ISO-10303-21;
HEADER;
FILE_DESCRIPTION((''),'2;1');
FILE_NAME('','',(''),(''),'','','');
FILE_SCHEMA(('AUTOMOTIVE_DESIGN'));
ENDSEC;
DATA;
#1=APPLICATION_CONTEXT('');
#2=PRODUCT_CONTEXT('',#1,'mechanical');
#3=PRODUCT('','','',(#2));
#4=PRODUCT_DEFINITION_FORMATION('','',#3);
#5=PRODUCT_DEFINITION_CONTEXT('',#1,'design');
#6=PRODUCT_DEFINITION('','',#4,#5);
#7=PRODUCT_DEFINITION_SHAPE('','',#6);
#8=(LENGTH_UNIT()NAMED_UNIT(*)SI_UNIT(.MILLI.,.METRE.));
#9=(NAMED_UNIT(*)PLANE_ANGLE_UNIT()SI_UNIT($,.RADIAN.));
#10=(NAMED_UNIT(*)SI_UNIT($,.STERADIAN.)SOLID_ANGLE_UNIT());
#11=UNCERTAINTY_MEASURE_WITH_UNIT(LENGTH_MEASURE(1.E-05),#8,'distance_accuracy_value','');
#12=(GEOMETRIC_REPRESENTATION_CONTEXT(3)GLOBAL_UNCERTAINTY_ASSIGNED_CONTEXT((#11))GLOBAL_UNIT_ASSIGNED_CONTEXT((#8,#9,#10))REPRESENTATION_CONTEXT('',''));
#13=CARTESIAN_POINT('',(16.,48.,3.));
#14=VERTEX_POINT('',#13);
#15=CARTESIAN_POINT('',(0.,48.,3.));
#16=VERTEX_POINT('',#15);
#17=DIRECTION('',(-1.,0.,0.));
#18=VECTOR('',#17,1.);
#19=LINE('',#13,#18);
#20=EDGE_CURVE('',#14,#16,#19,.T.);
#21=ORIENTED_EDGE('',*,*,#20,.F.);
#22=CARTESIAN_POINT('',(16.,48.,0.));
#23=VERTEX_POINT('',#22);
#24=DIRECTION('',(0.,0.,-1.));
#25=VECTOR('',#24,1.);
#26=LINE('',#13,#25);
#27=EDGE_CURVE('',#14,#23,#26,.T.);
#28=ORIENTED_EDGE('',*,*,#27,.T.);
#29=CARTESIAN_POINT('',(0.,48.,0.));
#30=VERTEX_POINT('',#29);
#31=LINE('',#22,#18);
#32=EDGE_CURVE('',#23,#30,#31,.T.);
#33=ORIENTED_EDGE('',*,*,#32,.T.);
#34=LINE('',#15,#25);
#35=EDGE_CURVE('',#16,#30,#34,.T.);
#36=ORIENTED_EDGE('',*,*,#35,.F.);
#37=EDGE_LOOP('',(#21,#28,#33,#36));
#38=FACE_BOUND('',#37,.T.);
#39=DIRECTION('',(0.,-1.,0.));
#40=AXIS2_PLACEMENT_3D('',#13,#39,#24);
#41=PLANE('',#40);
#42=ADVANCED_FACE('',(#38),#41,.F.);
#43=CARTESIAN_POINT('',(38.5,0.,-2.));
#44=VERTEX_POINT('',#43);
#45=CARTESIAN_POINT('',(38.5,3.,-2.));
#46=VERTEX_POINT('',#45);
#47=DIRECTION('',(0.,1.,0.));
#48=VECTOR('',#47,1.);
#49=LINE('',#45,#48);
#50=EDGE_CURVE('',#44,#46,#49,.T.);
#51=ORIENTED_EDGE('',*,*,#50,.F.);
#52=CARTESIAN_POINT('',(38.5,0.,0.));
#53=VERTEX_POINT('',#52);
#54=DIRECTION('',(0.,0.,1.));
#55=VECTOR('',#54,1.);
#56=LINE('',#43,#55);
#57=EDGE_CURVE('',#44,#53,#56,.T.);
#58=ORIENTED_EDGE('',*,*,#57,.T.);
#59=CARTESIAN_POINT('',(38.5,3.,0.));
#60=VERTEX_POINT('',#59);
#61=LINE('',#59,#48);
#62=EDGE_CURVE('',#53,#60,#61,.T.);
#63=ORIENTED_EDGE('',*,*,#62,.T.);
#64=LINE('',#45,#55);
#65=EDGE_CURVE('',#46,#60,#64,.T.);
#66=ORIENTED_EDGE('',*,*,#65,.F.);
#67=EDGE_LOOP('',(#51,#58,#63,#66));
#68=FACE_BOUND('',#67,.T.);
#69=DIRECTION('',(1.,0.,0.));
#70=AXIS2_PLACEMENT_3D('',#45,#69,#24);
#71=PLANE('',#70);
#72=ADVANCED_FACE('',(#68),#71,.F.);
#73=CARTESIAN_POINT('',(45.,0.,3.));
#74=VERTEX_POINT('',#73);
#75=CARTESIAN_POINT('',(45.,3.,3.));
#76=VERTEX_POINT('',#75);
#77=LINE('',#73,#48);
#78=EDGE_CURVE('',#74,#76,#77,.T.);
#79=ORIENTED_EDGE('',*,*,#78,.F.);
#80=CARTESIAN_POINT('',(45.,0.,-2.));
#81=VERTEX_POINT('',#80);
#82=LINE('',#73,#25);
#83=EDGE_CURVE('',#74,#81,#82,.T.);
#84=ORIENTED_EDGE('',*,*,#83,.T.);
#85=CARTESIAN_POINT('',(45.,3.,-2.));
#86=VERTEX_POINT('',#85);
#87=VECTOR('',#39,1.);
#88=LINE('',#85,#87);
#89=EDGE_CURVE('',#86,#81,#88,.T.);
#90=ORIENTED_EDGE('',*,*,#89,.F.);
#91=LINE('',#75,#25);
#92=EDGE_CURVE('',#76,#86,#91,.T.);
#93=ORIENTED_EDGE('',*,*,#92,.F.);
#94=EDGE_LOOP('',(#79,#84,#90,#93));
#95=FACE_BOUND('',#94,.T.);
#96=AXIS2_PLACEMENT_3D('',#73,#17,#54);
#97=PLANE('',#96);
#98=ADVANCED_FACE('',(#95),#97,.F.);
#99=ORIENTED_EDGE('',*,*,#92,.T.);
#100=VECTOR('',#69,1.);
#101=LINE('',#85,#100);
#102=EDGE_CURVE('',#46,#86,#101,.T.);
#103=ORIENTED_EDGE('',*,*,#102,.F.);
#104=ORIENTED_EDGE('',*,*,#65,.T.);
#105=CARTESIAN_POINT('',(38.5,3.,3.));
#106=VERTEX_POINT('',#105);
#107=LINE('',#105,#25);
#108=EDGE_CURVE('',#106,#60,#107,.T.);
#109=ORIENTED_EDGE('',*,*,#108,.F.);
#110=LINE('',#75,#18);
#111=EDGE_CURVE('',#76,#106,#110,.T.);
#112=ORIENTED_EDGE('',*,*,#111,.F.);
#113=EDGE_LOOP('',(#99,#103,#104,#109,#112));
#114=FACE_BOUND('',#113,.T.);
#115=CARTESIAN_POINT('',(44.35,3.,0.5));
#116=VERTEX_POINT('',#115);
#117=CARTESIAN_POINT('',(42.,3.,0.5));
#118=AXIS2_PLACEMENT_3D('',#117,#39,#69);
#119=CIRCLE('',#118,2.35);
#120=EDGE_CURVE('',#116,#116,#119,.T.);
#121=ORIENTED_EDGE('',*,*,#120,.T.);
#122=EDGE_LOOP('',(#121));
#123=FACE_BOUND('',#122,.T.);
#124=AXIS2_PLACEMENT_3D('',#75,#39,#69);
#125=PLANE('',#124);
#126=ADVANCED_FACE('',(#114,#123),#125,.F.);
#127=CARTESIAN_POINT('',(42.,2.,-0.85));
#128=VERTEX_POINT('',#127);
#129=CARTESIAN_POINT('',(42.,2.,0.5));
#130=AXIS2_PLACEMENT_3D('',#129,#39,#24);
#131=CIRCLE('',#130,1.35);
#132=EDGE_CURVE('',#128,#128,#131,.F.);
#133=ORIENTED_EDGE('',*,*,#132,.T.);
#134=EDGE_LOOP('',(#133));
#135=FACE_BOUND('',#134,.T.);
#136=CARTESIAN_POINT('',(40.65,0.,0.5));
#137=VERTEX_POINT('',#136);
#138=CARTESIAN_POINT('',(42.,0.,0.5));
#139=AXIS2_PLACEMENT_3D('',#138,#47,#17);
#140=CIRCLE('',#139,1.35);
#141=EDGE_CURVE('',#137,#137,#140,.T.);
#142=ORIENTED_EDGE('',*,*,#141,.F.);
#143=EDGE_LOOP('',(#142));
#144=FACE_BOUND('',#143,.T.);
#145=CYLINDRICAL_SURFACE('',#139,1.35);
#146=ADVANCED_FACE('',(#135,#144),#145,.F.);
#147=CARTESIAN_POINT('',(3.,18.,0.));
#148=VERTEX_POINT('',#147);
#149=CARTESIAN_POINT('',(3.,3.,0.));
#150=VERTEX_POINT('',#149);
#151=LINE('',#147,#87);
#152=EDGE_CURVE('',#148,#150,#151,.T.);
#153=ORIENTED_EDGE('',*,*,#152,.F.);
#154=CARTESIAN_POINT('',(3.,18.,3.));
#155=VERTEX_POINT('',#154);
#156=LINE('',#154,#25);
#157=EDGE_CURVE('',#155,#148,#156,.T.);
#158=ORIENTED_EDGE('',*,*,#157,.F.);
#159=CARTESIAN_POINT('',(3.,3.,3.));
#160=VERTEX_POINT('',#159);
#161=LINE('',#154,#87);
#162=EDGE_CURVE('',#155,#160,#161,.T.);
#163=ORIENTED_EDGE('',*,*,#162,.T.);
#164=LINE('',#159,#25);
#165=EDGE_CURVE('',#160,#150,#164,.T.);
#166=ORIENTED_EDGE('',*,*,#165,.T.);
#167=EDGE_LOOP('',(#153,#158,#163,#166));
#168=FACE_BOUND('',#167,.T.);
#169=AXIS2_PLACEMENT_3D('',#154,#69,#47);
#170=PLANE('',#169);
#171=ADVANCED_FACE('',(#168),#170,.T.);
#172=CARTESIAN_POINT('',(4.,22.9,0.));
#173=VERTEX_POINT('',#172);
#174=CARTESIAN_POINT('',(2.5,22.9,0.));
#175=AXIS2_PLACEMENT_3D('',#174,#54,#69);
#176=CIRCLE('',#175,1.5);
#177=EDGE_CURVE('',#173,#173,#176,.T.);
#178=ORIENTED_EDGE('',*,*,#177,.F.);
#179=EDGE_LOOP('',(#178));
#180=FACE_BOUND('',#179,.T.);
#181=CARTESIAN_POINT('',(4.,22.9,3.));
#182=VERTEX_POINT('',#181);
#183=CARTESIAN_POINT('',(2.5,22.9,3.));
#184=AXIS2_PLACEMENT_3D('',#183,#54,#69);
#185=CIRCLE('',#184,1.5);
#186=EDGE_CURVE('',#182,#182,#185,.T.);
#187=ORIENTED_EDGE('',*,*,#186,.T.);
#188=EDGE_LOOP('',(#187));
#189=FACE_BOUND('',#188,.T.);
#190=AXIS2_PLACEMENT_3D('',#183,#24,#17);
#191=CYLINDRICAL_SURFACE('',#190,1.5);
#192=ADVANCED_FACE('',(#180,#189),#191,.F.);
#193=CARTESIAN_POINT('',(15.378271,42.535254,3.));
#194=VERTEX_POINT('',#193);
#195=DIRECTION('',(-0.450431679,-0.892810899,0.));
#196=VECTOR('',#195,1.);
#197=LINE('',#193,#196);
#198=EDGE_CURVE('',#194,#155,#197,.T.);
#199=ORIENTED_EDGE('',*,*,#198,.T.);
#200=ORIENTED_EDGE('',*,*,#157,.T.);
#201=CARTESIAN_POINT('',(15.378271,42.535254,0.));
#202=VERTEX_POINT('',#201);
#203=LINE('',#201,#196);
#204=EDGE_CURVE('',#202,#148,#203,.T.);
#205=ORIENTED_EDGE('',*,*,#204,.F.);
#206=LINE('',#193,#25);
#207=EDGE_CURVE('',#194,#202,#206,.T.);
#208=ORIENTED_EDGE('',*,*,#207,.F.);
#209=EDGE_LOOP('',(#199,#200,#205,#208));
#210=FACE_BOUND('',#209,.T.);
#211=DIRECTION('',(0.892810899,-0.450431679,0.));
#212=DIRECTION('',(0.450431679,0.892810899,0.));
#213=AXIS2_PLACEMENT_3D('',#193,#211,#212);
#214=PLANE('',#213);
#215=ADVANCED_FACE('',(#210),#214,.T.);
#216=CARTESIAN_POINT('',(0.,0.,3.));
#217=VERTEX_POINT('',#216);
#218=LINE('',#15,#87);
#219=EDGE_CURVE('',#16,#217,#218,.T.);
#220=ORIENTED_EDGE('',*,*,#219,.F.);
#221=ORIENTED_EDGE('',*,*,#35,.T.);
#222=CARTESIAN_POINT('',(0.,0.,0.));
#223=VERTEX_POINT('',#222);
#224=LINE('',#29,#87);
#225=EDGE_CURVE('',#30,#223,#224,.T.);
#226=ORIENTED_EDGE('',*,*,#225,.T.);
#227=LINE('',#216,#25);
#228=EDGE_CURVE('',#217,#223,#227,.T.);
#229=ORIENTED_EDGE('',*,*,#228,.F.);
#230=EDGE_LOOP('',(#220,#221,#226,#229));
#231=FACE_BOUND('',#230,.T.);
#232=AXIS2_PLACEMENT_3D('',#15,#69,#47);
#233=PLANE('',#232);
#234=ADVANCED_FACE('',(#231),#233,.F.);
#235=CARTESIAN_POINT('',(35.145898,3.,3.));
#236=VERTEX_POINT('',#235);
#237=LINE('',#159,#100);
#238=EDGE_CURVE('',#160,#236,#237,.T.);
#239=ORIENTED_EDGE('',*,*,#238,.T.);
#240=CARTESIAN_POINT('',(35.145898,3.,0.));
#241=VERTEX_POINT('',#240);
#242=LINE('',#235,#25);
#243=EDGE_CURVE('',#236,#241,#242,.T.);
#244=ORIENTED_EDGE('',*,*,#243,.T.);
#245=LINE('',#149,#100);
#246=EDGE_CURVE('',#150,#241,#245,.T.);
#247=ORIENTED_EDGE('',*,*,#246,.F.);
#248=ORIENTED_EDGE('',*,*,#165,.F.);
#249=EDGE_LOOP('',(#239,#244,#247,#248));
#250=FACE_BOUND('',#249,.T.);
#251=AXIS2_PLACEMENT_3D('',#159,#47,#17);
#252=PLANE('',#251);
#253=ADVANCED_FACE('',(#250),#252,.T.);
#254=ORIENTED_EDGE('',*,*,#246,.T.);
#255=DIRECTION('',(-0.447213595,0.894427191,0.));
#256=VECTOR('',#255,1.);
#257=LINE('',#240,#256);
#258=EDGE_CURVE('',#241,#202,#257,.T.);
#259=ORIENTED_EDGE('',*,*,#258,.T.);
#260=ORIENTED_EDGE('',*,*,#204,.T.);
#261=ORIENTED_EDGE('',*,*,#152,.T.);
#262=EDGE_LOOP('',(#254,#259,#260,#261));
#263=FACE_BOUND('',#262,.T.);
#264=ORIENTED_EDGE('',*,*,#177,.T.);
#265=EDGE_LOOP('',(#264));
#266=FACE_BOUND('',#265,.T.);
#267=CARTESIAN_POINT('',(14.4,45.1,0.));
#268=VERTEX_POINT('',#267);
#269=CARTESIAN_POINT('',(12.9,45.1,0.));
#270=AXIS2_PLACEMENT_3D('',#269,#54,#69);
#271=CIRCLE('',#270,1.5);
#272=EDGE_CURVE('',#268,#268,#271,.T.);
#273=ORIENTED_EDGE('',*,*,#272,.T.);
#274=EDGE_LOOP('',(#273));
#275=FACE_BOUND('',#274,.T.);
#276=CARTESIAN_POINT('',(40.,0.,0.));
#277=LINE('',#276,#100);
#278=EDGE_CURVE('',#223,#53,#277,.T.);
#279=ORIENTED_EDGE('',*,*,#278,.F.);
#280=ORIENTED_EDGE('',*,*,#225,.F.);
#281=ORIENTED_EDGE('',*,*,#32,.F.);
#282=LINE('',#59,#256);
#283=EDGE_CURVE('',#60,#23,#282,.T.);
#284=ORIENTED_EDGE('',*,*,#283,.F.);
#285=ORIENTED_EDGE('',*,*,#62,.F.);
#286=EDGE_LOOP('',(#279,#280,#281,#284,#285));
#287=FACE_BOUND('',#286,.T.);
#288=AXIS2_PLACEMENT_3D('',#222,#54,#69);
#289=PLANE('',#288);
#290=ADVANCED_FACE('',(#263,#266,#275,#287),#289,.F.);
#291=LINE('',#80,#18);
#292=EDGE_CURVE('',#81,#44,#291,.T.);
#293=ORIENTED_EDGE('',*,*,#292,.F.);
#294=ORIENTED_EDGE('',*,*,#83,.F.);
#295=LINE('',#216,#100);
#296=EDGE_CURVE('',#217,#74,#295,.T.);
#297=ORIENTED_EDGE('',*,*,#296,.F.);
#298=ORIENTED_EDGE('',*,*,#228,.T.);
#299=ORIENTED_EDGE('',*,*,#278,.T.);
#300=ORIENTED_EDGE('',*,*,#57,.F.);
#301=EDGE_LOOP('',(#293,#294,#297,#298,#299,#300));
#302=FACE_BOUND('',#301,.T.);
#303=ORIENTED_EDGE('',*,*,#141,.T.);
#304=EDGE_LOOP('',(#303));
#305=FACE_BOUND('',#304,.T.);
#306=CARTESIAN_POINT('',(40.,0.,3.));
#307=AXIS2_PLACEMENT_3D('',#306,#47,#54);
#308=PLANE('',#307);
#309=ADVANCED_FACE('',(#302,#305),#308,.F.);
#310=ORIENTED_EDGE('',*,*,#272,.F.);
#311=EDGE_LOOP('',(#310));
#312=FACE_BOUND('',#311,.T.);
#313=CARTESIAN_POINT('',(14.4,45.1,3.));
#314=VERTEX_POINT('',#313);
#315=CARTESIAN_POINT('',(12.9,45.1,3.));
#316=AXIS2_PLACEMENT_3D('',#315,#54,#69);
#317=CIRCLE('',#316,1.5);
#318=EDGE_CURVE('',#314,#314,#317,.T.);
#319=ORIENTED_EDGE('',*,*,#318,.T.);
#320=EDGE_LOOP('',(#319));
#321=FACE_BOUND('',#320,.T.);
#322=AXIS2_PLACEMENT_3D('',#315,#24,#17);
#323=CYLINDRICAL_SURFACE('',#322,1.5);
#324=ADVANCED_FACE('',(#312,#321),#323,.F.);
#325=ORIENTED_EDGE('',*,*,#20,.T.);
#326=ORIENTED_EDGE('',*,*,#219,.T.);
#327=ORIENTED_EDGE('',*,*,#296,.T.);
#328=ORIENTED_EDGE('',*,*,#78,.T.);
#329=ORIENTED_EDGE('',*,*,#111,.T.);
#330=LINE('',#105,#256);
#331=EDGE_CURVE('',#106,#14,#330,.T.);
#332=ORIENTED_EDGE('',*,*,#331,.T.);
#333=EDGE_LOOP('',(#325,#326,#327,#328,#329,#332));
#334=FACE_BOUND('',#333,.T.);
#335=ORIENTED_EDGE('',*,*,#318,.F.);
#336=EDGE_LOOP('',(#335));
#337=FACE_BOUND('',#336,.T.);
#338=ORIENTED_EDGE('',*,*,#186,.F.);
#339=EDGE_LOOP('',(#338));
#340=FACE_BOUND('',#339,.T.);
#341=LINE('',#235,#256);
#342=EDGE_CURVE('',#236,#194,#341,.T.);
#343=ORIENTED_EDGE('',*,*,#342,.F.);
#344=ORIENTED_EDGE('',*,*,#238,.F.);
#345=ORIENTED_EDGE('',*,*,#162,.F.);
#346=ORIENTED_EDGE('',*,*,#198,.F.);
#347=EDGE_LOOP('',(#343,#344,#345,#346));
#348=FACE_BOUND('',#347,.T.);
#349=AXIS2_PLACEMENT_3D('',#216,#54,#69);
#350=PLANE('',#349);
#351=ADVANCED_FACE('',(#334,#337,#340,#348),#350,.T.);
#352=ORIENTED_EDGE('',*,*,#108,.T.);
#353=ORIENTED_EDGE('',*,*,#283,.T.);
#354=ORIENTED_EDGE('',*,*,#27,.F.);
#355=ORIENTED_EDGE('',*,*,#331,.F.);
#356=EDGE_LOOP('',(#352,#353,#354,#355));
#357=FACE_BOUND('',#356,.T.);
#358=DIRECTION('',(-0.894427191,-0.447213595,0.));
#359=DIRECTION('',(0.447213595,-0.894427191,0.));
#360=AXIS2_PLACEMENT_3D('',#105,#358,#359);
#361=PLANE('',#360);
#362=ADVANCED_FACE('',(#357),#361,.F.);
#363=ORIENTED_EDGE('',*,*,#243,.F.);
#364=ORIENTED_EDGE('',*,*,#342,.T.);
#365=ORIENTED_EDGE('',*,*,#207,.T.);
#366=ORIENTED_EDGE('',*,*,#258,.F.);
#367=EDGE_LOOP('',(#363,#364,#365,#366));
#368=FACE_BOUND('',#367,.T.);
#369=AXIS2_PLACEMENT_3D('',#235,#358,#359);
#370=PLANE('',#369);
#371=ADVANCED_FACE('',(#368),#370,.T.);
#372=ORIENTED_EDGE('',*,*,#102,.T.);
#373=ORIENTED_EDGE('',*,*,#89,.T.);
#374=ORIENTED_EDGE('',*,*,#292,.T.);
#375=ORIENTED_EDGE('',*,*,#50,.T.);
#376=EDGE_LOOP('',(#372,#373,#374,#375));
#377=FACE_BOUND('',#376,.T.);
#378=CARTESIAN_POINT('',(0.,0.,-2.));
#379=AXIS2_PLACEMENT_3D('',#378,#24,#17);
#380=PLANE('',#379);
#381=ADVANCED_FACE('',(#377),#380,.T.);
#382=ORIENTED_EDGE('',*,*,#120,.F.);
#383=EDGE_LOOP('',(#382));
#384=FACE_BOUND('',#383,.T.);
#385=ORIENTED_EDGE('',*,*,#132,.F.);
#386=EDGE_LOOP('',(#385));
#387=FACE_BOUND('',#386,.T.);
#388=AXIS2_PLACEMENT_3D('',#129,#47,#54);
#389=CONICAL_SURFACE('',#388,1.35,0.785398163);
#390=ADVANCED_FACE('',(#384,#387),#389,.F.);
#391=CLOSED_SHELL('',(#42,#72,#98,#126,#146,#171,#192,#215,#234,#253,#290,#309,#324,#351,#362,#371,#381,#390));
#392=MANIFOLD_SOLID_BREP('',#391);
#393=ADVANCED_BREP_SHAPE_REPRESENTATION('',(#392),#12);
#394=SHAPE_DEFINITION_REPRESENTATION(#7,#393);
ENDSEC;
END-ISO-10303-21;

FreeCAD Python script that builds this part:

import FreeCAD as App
import Part
import Sketcher
from FreeCAD import Vector
Q = App.Units.Quantity


def edges_at(feature, points):
    """Names of the edges that pass closest to the given points."""
    edges = feature.Shape.Edges
    near = lambda p: min(range(len(edges)), key=lambda i: edges[i].distToShape(Part.Vertex(*p))[0])
    return sorted({f"Edge{near(p) + 1}" for p in points})


def add_polygon(sketch, points):
    """Adds a closed chain of lines whose ends are joined by coincident constraints."""
    first, n = sketch.GeometryCount, len(points)
    for a, b in zip(points, points[1:] + points[:1]):
        sketch.addGeometry(Part.LineSegment(App.Vector(*a, 0), App.Vector(*b, 0)), False)
    for i in range(n):
        sketch.addConstraint(Sketcher.Constraint("Coincident", first + i, 2, first + (i + 1) % n, 1))

doc = App.newDocument("Part")
body = doc.addObject("PartDesign::Body", "Body")

sketch1 = doc.addObject("Sketcher::SketchObject", "Sketch")
body.addObject(sketch1)
sketch1.AttachmentSupport = (doc.XY_Plane, [""])
sketch1.MapMode = "FlatFace"
add_polygon(sketch1, [(0, 0), (45, 0), (45, 3), (38.5, 3), (16, 48), (0, 48)])
sketch1.addGeometry(Part.Circle(Vector(2.5, 22.9, 0), Vector(0, 0, 1), 1.5), False)
add_polygon(sketch1, [(35.1, 3), (3, 3), (3, 18), (15.4, 42.5)])
sketch1.addGeometry(Part.Circle(Vector(12.9, 45.1, 0), Vector(0, 0, 1), 1.5), False)
sketch1.addConstraint([
    Sketcher.Constraint("Horizontal", 0),
    Sketcher.Constraint("Vertical", 1),
    Sketcher.Constraint("Horizontal", 2),
    Sketcher.Constraint("Horizontal", 4),
    Sketcher.Constraint("Vertical", 5),
    Sketcher.Constraint("Horizontal", 7),
    Sketcher.Constraint("Vertical", 8),
    Sketcher.Constraint("Coincident", 5, 2, -1, 1),
    Sketcher.Constraint("Equal", 6, 11),
    Sketcher.Constraint("Parallel", 3, 10),
    Sketcher.Constraint("Horizontal", 2, 2, 7, 2),
    Sketcher.Constraint("Diameter", 6, Q("3 mm")),
    Sketcher.Constraint("DistanceX", 0, 1, 0, 2, Q("45 mm")),
    Sketcher.Constraint("DistanceX", 4, 2, 4, 1, Q("16 mm")),
    Sketcher.Constraint("DistanceY", 1, 1, 1, 2, Q("3 mm")),
    Sketcher.Constraint("DistanceY", 5, 2, 5, 1, Q("48 mm")),
    Sketcher.Constraint("DistanceY", 8, 1, 8, 2, Q("15 mm")),
    Sketcher.Constraint("DistanceX", 2, 2, 2, 1, Q("6.5 mm")),
    Sketcher.Constraint("DistanceX", -1, 1, 7, 2, Q("3 mm")),
    Sketcher.Constraint("DistanceX", 6, 3, 2, 2, Q("36 mm")),
    Sketcher.Constraint("DistanceY", -1, 1, 6, 3, Q("22.9 mm")),
    Sketcher.Constraint("DistanceX", -1, 1, 11, 3, Q("12.9 mm")),
    Sketcher.Constraint("DistanceY", -1, 1, 11, 3, Q("45.1 mm")),
    Sketcher.Constraint("DistanceX", 7, 2, 7, 1, Q("32.145898 mm")),
    Sketcher.Constraint("DistanceX", -1, 1, 9, 2, Q("15.378271 mm")),
])
pad1 = doc.addObject("PartDesign::Pad", "Pad")
body.addObject(pad1)
pad1.Profile = sketch1
pad1.Length = 3

sketch2 = doc.addObject("Sketcher::SketchObject", "Sketch001")
body.addObject(sketch2)
sketch2.AttachmentSupport = (doc.XY_Plane, [""])
sketch2.MapMode = "FlatFace"
add_polygon(sketch2, [(45, 3), (45, 0), (38.5, 0), (38.5, 3)])
sketch2.addConstraint([
    Sketcher.Constraint("Vertical", 0),
    Sketcher.Constraint("Horizontal", 1),
    Sketcher.Constraint("Vertical", 2),
    Sketcher.Constraint("Horizontal", 3),
    Sketcher.Constraint("PointOnObject", 0, 2, -1),
    Sketcher.Constraint("DistanceY", 0, 2, 0, 1, Q("3 mm")),
    Sketcher.Constraint("DistanceX", 1, 2, 1, 1, Q("6.5 mm")),
    Sketcher.Constraint("DistanceX", -1, 1, 0, 2, Q("45 mm")),
])
pad2 = doc.addObject("PartDesign::Pad", "Pad001")
body.addObject(pad2)
pad2.Profile = sketch2
pad2.Length = 2
pad2.Reversed = True

sketch3 = doc.addObject("Sketcher::SketchObject", "Sketch002")
body.addObject(sketch3)
sketch3.AttachmentSupport = (doc.XZ_Plane, [""])
sketch3.MapMode = "FlatFace"
sketch3.AttachmentOffset = App.Placement(Vector(0, 0, -3), App.Rotation())
sketch3.addGeometry(Part.Circle(Vector(42, 0.5, 0), Vector(0, 0, 1), 1.4), False)
sketch3.addConstraint([
    Sketcher.Constraint("Diameter", 0, Q("2.7 mm")),
    Sketcher.Constraint("DistanceX", -1, 1, 0, 3, Q("42 mm")),
    Sketcher.Constraint("DistanceY", -1, 1, 0, 3, Q("0.5 mm")),
])
pocket1 = doc.addObject("PartDesign::Pocket", "Pocket")
body.addObject(pocket1)
pocket1.Profile = sketch3
pocket1.Length = 3
pocket1.Reversed = True
doc.recompute()

chamfer = doc.addObject("PartDesign::Chamfer", "Chamfer")
body.addObject(chamfer)
chamfer.Base = (pocket1, edges_at(pocket1, [(40.65, 3, 0.5)]))
chamfer.Size = 1

doc.recompute()
